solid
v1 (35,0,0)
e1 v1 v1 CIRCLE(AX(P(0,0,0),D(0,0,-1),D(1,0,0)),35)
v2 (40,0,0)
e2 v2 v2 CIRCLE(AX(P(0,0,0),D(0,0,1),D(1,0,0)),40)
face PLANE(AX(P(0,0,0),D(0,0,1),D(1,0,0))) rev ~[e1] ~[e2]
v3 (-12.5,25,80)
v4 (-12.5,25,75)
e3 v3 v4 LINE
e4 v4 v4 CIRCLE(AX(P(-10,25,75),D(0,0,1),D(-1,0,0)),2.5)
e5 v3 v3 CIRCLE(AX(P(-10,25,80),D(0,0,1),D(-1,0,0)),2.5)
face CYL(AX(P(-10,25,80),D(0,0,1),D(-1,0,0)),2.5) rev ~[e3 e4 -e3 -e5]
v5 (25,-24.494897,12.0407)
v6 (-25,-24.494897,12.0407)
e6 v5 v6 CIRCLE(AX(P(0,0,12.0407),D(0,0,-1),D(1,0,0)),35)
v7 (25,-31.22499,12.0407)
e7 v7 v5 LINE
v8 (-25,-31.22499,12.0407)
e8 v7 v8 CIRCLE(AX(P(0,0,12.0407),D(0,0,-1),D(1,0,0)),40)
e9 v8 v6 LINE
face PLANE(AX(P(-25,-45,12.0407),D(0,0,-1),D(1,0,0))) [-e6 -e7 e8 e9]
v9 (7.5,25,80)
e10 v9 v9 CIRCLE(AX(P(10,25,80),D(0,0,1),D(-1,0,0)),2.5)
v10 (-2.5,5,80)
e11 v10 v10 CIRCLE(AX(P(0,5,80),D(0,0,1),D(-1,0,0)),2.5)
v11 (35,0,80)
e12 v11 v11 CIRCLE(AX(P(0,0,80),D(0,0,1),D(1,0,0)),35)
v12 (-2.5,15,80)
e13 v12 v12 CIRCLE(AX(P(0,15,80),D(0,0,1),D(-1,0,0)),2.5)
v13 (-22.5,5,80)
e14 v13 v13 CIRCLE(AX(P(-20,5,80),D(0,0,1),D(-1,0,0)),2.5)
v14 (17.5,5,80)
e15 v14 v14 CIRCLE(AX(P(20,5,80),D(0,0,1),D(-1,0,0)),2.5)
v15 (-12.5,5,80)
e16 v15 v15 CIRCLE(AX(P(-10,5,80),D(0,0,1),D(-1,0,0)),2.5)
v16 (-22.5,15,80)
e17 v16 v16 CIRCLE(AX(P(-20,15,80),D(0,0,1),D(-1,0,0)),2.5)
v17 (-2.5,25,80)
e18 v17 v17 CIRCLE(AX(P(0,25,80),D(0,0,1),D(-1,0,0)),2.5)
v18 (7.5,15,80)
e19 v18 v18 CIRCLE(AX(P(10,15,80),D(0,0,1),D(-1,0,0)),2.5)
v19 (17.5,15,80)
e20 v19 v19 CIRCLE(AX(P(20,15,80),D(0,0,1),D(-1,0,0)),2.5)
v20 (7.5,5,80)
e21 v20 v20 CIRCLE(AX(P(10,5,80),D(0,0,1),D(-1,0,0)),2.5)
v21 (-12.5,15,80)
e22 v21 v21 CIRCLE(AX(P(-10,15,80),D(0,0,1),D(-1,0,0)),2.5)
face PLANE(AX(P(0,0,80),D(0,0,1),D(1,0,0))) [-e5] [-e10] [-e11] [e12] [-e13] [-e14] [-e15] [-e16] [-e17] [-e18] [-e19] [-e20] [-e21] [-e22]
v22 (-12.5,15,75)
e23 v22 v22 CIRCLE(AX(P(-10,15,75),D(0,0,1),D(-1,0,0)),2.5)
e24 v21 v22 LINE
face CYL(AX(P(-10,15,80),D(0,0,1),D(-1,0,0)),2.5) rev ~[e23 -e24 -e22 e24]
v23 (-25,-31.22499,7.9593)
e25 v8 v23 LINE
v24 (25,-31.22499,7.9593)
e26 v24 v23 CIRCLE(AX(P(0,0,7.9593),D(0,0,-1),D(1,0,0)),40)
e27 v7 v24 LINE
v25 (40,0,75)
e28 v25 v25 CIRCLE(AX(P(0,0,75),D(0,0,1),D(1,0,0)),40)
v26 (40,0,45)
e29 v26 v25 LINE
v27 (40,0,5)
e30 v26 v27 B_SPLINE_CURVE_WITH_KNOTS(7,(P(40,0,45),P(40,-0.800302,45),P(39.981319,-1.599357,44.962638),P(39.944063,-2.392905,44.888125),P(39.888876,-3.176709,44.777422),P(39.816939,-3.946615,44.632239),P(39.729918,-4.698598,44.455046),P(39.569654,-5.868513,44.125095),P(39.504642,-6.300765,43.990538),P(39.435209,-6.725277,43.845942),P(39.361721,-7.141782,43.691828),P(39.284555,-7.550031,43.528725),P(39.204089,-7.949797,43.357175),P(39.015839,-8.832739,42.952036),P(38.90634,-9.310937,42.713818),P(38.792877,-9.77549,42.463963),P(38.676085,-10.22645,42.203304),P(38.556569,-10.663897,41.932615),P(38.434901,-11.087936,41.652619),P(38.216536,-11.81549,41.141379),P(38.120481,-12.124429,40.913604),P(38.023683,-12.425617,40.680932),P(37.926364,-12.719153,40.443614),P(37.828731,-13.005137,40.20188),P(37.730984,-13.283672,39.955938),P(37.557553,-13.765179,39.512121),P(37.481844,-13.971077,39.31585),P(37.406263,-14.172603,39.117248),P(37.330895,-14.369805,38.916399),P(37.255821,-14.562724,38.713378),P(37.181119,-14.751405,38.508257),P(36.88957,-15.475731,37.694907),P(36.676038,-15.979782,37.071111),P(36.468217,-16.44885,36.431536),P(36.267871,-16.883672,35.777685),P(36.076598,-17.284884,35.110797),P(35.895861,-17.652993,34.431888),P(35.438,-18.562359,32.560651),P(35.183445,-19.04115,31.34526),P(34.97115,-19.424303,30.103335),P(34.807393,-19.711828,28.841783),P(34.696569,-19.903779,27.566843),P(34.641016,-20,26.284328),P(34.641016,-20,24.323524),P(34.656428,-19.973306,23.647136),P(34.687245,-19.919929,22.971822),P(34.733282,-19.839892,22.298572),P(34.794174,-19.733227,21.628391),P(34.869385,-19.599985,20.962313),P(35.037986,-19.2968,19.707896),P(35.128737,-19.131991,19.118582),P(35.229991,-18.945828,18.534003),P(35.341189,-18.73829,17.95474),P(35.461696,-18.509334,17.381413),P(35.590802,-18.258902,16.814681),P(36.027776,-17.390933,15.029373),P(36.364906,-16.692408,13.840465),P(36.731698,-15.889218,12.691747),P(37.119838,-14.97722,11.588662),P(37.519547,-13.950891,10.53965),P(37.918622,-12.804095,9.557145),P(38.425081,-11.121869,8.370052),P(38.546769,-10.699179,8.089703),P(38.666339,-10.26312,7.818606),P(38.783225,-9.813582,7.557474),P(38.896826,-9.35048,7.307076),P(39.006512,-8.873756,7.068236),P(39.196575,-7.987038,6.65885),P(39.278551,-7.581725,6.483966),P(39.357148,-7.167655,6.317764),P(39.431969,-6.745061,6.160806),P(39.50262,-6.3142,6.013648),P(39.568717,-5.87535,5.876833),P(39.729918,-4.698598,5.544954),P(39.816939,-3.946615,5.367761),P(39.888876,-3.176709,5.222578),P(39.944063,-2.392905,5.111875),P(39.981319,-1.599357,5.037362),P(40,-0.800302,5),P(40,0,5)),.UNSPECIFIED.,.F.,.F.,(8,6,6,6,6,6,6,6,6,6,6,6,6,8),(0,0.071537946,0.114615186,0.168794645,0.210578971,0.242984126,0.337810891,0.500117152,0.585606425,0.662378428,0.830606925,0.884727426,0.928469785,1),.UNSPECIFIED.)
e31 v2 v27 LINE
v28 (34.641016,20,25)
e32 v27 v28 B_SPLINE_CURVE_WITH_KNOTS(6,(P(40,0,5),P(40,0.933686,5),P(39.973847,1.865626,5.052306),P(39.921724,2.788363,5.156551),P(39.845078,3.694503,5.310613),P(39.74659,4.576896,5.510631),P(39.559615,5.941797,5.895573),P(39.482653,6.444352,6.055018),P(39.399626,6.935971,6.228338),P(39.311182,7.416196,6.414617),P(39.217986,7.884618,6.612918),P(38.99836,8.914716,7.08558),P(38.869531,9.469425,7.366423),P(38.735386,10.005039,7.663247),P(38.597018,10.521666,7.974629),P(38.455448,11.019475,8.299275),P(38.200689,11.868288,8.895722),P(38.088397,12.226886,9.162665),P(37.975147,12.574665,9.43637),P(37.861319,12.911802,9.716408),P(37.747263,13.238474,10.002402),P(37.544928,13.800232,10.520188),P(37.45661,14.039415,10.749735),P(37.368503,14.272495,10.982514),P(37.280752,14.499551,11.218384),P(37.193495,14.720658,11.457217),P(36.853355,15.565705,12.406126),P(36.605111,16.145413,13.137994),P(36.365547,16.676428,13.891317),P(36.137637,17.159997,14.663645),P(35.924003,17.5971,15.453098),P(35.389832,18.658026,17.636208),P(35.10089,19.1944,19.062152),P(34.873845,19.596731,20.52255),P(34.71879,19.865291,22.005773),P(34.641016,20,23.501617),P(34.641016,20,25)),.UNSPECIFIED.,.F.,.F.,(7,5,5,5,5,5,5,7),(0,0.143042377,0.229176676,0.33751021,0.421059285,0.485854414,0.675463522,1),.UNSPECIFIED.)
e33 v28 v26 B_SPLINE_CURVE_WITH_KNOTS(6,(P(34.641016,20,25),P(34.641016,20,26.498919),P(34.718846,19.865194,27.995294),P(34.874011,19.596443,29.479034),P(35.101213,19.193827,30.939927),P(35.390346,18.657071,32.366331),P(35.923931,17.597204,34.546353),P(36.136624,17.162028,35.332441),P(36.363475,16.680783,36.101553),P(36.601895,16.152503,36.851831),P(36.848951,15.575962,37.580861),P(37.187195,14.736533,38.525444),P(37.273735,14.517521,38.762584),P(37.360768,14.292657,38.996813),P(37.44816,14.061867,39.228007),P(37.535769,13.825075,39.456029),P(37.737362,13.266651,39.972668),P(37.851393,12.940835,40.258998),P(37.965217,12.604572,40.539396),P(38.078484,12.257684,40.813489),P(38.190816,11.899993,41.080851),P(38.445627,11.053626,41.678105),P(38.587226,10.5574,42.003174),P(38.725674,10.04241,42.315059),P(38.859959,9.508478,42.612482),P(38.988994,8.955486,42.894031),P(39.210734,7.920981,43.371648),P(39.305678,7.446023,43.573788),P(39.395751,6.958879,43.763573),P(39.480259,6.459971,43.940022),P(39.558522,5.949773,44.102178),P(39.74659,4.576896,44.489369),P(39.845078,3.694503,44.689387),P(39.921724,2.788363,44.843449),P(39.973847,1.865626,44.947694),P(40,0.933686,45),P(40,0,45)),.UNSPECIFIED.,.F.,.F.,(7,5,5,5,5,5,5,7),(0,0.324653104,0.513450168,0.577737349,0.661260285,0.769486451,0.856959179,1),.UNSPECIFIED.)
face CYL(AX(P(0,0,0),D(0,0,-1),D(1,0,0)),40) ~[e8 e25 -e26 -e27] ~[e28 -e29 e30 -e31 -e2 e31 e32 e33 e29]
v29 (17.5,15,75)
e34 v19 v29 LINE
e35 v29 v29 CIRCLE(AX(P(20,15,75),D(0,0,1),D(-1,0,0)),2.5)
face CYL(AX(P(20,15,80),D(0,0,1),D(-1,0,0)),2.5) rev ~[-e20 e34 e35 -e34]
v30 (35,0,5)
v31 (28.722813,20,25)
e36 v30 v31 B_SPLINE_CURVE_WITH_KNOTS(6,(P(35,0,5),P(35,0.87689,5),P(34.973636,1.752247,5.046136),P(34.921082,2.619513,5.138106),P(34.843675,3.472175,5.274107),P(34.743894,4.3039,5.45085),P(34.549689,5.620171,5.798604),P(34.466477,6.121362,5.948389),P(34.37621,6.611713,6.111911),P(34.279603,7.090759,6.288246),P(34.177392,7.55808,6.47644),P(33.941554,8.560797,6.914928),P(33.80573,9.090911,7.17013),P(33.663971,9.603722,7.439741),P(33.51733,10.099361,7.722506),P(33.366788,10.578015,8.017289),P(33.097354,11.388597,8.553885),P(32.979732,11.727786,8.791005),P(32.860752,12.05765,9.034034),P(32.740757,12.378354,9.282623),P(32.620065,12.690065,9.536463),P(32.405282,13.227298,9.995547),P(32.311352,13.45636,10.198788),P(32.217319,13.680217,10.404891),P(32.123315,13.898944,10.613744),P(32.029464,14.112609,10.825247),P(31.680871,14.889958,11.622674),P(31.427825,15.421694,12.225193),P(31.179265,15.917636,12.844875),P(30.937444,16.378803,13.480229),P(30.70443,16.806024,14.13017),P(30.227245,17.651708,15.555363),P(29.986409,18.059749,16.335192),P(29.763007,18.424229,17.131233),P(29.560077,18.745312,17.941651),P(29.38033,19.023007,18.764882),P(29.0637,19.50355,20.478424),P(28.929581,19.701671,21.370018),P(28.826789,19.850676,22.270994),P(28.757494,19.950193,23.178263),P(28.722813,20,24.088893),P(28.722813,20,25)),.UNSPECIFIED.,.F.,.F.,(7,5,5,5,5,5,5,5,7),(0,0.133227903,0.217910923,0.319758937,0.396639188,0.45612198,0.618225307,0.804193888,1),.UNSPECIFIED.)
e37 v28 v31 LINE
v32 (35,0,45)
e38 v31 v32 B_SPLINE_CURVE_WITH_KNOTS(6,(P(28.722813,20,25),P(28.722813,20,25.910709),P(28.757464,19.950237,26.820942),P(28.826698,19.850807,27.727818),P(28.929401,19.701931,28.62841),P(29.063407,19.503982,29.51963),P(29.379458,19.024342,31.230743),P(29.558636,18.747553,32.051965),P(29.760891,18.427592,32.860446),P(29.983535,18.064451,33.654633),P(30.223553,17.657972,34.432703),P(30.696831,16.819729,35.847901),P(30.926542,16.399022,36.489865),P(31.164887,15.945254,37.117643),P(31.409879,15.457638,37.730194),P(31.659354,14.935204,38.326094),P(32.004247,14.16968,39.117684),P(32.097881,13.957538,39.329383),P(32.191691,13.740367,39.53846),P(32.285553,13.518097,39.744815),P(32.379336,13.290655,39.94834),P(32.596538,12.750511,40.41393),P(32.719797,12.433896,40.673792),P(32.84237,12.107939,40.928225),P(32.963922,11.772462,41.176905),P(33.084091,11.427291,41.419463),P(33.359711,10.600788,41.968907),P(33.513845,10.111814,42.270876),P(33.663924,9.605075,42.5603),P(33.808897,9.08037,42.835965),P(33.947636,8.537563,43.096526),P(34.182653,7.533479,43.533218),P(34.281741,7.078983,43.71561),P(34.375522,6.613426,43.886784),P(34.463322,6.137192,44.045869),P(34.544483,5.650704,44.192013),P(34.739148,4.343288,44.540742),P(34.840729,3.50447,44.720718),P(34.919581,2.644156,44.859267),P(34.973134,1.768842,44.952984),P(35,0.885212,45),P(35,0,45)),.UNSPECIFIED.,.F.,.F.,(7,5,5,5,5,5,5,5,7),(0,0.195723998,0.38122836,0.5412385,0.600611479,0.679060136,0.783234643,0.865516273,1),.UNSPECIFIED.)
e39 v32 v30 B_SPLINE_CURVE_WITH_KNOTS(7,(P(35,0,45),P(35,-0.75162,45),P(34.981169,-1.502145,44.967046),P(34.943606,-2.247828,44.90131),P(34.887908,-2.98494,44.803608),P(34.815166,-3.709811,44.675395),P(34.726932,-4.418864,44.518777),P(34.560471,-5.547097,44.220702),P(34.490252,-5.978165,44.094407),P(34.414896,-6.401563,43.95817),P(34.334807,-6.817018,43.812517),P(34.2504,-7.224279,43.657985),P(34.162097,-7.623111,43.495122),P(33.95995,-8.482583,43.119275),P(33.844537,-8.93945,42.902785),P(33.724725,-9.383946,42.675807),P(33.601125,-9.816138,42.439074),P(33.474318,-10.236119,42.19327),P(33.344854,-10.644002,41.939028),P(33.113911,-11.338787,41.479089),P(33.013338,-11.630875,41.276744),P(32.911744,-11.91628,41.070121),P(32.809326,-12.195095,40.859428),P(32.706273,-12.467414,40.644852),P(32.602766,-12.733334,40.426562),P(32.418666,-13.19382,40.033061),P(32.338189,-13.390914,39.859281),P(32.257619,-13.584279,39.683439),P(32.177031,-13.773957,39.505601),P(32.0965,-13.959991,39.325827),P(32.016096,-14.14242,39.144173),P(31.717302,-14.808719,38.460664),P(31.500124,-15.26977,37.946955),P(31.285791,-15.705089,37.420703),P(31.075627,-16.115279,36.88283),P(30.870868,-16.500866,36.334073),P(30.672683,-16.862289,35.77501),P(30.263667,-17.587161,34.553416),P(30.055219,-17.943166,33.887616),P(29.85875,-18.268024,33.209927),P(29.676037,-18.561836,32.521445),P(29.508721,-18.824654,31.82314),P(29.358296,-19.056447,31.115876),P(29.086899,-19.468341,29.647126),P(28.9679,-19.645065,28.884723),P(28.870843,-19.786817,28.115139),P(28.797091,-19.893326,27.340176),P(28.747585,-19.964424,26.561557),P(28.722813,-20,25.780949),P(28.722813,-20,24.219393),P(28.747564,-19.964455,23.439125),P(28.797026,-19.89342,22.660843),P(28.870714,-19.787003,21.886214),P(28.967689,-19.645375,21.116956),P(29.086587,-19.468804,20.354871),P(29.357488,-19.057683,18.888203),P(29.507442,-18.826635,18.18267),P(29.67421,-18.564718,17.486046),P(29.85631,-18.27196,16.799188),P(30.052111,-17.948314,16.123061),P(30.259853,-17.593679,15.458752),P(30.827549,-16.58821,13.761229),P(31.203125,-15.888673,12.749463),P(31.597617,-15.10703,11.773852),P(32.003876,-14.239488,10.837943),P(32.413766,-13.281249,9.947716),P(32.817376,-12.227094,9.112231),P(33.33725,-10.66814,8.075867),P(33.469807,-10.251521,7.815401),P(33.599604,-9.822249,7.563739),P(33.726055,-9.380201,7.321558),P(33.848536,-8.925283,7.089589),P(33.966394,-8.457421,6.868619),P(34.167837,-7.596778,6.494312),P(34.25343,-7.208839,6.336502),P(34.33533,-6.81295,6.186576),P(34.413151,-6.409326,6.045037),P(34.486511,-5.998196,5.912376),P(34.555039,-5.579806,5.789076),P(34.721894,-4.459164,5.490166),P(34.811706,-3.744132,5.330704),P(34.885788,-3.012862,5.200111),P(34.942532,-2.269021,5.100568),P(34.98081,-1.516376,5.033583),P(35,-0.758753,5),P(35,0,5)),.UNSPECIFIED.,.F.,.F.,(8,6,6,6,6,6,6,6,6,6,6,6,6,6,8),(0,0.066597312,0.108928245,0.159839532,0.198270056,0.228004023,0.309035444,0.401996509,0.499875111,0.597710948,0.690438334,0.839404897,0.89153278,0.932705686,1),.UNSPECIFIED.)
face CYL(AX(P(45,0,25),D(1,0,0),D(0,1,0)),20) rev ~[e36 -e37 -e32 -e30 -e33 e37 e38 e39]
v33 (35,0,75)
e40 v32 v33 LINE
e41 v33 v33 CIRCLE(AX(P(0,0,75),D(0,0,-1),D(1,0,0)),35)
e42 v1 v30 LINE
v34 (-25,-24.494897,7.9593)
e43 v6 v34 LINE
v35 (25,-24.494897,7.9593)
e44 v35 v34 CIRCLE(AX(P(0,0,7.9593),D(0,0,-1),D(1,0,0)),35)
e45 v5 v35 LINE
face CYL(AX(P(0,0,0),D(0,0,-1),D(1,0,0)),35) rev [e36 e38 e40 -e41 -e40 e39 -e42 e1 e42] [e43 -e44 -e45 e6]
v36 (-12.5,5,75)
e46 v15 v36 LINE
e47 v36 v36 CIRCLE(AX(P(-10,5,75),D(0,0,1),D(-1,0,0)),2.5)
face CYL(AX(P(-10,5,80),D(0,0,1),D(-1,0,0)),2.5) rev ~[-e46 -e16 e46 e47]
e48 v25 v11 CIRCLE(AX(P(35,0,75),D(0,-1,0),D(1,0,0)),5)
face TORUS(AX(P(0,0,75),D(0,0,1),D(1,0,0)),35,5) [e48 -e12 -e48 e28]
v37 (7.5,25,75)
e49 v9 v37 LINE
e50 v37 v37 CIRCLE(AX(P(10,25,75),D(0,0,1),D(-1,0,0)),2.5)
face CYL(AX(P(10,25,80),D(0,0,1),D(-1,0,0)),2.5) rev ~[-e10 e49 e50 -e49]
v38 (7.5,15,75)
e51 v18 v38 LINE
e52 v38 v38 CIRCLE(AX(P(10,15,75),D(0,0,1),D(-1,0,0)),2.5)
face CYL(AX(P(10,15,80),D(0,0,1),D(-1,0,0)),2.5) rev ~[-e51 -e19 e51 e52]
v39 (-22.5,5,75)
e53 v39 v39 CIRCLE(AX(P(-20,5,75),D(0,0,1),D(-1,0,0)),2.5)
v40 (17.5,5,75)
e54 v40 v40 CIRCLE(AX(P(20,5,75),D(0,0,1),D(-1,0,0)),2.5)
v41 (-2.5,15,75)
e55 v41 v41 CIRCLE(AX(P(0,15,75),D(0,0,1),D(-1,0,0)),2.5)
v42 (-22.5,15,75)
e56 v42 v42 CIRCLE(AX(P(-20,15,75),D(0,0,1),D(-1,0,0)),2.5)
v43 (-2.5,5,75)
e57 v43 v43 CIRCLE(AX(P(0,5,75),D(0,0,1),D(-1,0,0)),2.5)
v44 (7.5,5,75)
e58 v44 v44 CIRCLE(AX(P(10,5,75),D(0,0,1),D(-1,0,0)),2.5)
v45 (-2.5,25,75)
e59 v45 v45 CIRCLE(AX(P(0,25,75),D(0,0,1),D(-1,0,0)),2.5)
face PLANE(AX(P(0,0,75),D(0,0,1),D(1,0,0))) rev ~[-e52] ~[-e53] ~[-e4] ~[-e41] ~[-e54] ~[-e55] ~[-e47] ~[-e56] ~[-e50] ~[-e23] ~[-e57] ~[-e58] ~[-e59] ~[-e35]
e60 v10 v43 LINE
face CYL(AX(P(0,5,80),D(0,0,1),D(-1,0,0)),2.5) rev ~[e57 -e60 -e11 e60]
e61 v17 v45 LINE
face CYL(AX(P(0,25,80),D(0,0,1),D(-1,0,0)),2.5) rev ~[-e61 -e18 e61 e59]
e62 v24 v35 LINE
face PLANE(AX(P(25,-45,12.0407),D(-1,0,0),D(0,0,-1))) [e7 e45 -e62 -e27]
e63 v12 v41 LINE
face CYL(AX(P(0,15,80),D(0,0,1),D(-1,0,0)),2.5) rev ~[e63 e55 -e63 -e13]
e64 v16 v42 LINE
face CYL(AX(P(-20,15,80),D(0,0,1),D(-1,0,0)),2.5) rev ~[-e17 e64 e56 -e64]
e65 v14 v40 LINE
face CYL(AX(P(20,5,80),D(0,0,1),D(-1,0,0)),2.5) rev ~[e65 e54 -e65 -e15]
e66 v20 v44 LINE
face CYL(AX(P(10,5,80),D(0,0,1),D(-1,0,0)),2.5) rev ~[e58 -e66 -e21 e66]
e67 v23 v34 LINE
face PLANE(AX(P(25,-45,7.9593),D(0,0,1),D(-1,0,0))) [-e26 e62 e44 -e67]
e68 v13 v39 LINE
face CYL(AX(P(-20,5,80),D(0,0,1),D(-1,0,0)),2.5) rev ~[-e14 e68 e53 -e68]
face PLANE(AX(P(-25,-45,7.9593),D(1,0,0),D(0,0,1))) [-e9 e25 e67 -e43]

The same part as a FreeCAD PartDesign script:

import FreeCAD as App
import Part
import Sketcher

V = App.Vector
Q = App.Units.Quantity


def edges_at(feature, points):
    """Names of the edges that pass closest to the given points."""
    edges = feature.Shape.Edges
    near = lambda p: min(range(len(edges)), key=lambda i: edges[i].distToShape(Part.Vertex(*p))[0])
    return sorted({f"Edge{near(p) + 1}" for p in points})


def faces_at(feature, points):
    """Names of the faces that lie closest to the given points."""
    faces = feature.Shape.Faces
    near = lambda p: min(range(len(faces)), key=lambda i: faces[i].distToShape(Part.Vertex(*p))[0])
    return sorted({f"Face{near(p) + 1}" for p in points})

doc = App.newDocument("Part")
body = doc.addObject("PartDesign::Body", "Body")

# Sketch on XY plane
sketch1 = body.newObject("Sketcher::SketchObject", "Sketch")
sketch1.AttachmentSupport = (doc.getObject("XY_Plane"), [""])
sketch1.MapMode = "FlatFace"
sketch1.addGeometry(Part.Circle(V(0, 0, 0), V(0, 0, 1), 40), False)
sketch1.addConstraint(Sketcher.Constraint("Coincident", 0, 3, -1, 1))
sketch1.addConstraint(Sketcher.Constraint("Diameter", 0, Q("80 mm")))
pad1 = body.newObject("PartDesign::Pad", "Pad")
pad1.Profile = sketch1
pad1.Length = 80
doc.recompute()

thickness = body.newObject("PartDesign::Thickness", "Thickness")
thickness.Base = (pad1, faces_at(pad1, [(9.485, -14.222, 0)]))
thickness.Value = 5
thickness.Reversed = True
thickness.Join = "Intersection"
doc.recompute()

fillet = body.newObject("PartDesign::Fillet", "Fillet")
fillet.Base = (thickness, edges_at(thickness, [(-37.293, -14.465, 80)]))
fillet.Radius = 5

# Sketch on YZ plane
sketch2 = body.newObject("Sketcher::SketchObject", "Sketch001")
sketch2.AttachmentSupport = (doc.getObject("YZ_Plane"), [""])
sketch2.MapMode = "FlatFace"
sketch2.AttachmentOffset = App.Placement(V(0, 0, 45), App.Rotation())
sketch2.addGeometry(Part.Circle(V(0, 25, 0), V(0, 0, 1), 20), False)
sketch2.addConstraint(Sketcher.Constraint("PointOnObject", 0, 3, -2))
sketch2.addConstraint(Sketcher.Constraint("Diameter", 0, Q("40 mm")))
sketch2.addConstraint(Sketcher.Constraint("DistanceY", -1, 1, 0, 3, Q("25 mm")))
pocket1 = body.newObject("PartDesign::Pocket", "Pocket")
pocket1.Profile = sketch2
pocket1.Length = 25

# Sketch on XY plane
sketch3 = body.newObject("Sketcher::SketchObject", "Sketch002")
sketch3.AttachmentSupport = (doc.getObject("XY_Plane"), [""])
sketch3.MapMode = "FlatFace"
sketch3.AttachmentOffset = App.Placement(V(0, 0, 80), App.Rotation())
sketch3.addGeometry(Part.Circle(V(-10, 25, 0), V(0, 0, 1), 2.5), False)
sketch3.addGeometry(Part.Circle(V(0, 25, 0), V(0, 0, 1), 2.5), False)
sketch3.addGeometry(Part.Circle(V(10, 25, 0), V(0, 0, 1), 2.5), False)
sketch3.addGeometry(Part.Circle(V(-10, 15, 0), V(0, 0, 1), 2.5), False)
sketch3.addGeometry(Part.Circle(V(0, 15, 0), V(0, 0, 1), 2.5), False)
sketch3.addGeometry(Part.Circle(V(10, 15, 0), V(0, 0, 1), 2.5), False)
sketch3.addGeometry(Part.Circle(V(20, 15, 0), V(0, 0, 1), 2.5), False)
sketch3.addGeometry(Part.Circle(V(-20, 15, 0), V(0, 0, 1), 2.5), False)
sketch3.addGeometry(Part.Circle(V(0, 5, 0), V(0, 0, 1), 2.5), False)
sketch3.addGeometry(Part.Circle(V(10, 5, 0), V(0, 0, 1), 2.5), False)
sketch3.addGeometry(Part.Circle(V(20, 5, 0), V(0, 0, 1), 2.5), False)
sketch3.addGeometry(Part.Circle(V(-10, 5, 0), V(0, 0, 1), 2.5), False)
sketch3.addGeometry(Part.Circle(V(-20, 5, 0), V(0, 0, 1), 2.5), False)
sketch3.addConstraint(Sketcher.Constraint("Equal", 0, 1))
sketch3.addConstraint(Sketcher.Constraint("Equal", 1, 2))
sketch3.addConstraint(Sketcher.Constraint("Equal", 2, 3))
sketch3.addConstraint(Sketcher.Constraint("Equal", 3, 4))
sketch3.addConstraint(Sketcher.Constraint("Equal", 4, 5))
sketch3.addConstraint(Sketcher.Constraint("Equal", 5, 6))
sketch3.addConstraint(Sketcher.Constraint("Equal", 6, 7))
sketch3.addConstraint(Sketcher.Constraint("Equal", 7, 8))
sketch3.addConstraint(Sketcher.Constraint("Equal", 8, 9))
sketch3.addConstraint(Sketcher.Constraint("Equal", 9, 10))
sketch3.addConstraint(Sketcher.Constraint("Equal", 10, 11))
sketch3.addConstraint(Sketcher.Constraint("Equal", 11, 12))
sketch3.addConstraint(Sketcher.Constraint("Symmetric", 0, 3, 2, 3, -2))
sketch3.addConstraint(Sketcher.Constraint("Symmetric", 3, 3, 5, 3, -2))
sketch3.addConstraint(Sketcher.Constraint("Symmetric", 6, 3, 7, 3, -2))
sketch3.addConstraint(Sketcher.Constraint("Symmetric", 9, 3, 11, 3, -2))
sketch3.addConstraint(Sketcher.Constraint("Symmetric", 10, 3, 12, 3, -2))
sketch3.addConstraint(Sketcher.Constraint("PointOnObject", 1, 3, -2))
sketch3.addConstraint(Sketcher.Constraint("PointOnObject", 4, 3, -2))
sketch3.addConstraint(Sketcher.Constraint("PointOnObject", 8, 3, -2))
sketch3.addConstraint(Sketcher.Constraint("Horizontal", 0, 3, 1, 3))
sketch3.addConstraint(Sketcher.Constraint("Horizontal", 3, 3, 4, 3))
sketch3.addConstraint(Sketcher.Constraint("Horizontal", 5, 3, 6, 3))
sketch3.addConstraint(Sketcher.Constraint("Horizontal", 8, 3, 9, 3))
sketch3.addConstraint(Sketcher.Constraint("Horizontal", 9, 3, 10, 3))
sketch3.addConstraint(Sketcher.Constraint("Vertical", 0, 3, 3, 3))
sketch3.addConstraint(Sketcher.Constraint("Vertical", 5, 3, 9, 3))
sketch3.addConstraint(Sketcher.Constraint("Vertical", 6, 3, 10, 3))
sketch3.addConstraint(Sketcher.Constraint("Diameter", 0, Q("5 mm")))
sketch3.addConstraint(Sketcher.Constraint("DistanceY", -1, 1, 8, 3, Q("5 mm")))
sketch3.addConstraint(Sketcher.Constraint("DistanceX", 0, 3, -1, 1, Q("10 mm")))
sketch3.addConstraint(Sketcher.Constraint("DistanceY", -1, 1, 0, 3, Q("25 mm")))
sketch3.addConstraint(Sketcher.Constraint("DistanceY", -1, 1, 3, 3, Q("15 mm")))
sketch3.addConstraint(Sketcher.Constraint("DistanceX", -1, 1, 6, 3, Q("20 mm")))
pocket2 = body.newObject("PartDesign::Pocket", "Pocket001")
pocket2.Profile = sketch3
pocket2.Length = 8

# Sketch on XZ plane
sketch4 = body.newObject("Sketcher::SketchObject", "Sketch003")
sketch4.AttachmentSupport = (doc.getObject("XZ_Plane"), [""])
sketch4.MapMode = "FlatFace"
sketch4.AttachmentOffset = App.Placement(V(0, 0, 45), App.Rotation())
sketch4.addGeometry(Part.LineSegment(V(-25, 8, 0), V(-25, 12, 0)), False)
sketch4.addGeometry(Part.LineSegment(V(-25, 12, 0), V(25, 12, 0)), False)
sketch4.addGeometry(Part.LineSegment(V(25, 12, 0), V(25, 8, 0)), False)
sketch4.addGeometry(Part.LineSegment(V(25, 8, 0), V(-25, 8, 0)), False)
sketch4.addConstraint(Sketcher.Constraint("Coincident", 0, 2, 1, 1))
sketch4.addConstraint(Sketcher.Constraint("Coincident", 1, 2, 2, 1))
sketch4.addConstraint(Sketcher.Constraint("Coincident", 2, 2, 3, 1))
sketch4.addConstraint(Sketcher.Constraint("Coincident", 3, 2, 0, 1))
sketch4.addConstraint(Sketcher.Constraint("Vertical", 0))
sketch4.addConstraint(Sketcher.Constraint("Horizontal", 1))
sketch4.addConstraint(Sketcher.Constraint("Vertical", 2))
sketch4.addConstraint(Sketcher.Constraint("Horizontal", 3))
sketch4.addConstraint(Sketcher.Constraint("DistanceX", 1, 1, 1, 2, Q("50 mm")))
sketch4.addConstraint(Sketcher.Constraint("DistanceX", 0, 2, -1, 1, Q("25 mm")))
sketch4.addConstraint(Sketcher.Constraint("DistanceY", 0, 1, 0, 2, Q("4.0814 mm")))
sketch4.addConstraint(Sketcher.Constraint("DistanceY", -1, 1, 0, 2, Q("12.0407 mm")))
pocket3 = body.newObject("PartDesign::Pocket", "Pocket002")
pocket3.Profile = sketch4
pocket3.Length = 30

doc.recompute()
